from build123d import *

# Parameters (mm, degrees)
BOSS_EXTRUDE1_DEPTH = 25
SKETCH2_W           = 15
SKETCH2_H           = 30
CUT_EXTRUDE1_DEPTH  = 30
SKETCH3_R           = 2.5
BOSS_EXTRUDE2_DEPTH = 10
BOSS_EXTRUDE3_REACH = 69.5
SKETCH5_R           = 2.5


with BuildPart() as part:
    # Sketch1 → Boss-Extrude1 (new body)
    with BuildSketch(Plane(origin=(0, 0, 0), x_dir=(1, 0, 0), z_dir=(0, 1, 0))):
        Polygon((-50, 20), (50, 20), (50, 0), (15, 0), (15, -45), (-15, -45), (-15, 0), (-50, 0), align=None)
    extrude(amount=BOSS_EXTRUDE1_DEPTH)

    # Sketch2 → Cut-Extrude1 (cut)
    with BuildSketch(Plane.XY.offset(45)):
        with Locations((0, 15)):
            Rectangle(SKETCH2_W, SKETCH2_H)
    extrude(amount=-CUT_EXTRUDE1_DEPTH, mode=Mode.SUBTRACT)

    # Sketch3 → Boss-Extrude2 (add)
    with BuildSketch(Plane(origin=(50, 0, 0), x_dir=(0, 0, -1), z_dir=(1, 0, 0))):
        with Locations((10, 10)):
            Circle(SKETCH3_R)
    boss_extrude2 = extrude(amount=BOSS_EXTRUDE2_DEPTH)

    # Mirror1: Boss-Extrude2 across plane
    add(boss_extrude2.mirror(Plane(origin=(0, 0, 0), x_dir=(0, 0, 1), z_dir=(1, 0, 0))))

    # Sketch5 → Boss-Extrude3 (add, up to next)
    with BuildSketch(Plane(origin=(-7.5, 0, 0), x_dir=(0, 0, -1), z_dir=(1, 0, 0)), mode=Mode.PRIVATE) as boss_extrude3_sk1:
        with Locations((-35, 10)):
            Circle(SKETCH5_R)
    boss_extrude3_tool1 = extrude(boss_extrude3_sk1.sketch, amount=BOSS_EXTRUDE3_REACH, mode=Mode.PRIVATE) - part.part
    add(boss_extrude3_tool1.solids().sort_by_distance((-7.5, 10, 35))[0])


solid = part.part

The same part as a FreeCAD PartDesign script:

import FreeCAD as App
import Part
import Sketcher
from FreeCAD import Vector

doc = App.newDocument("Part")
body = doc.addObject("PartDesign::Body", "Body")

sketch1 = body.newObject("Sketcher::SketchObject", "Sketch")
sketch1.AttachmentSupport = (doc.getObject("XZ_Plane"), [""])
sketch1.MapMode = "FlatFace"
sketch1.addGeometry([
    Part.LineSegment(Vector(50, -20, 0), Vector(-50, -20, 0)),
    Part.LineSegment(Vector(-50, -20, 0), Vector(-50, 0, 0)),
    Part.LineSegment(Vector(-50, 0, 0), Vector(-15, 0, 0)),
    Part.LineSegment(Vector(-15, 0, 0), Vector(-15, 45, 0)),
    Part.LineSegment(Vector(-15, 45, 0), Vector(15, 45, 0)),
    Part.LineSegment(Vector(15, 45, 0), Vector(15, 0, 0)),
    Part.LineSegment(Vector(15, 0, 0), Vector(50, 0, 0)),
    Part.LineSegment(Vector(50, 0, 0), Vector(50, -20, 0)),
], False)
sketch1.addConstraint([
    Sketcher.Constraint("Coincident", 0, 2, 1, 1),
    Sketcher.Constraint("Coincident", 1, 2, 2, 1),
    Sketcher.Constraint("Coincident", 2, 2, 3, 1),
    Sketcher.Constraint("Coincident", 3, 2, 4, 1),
    Sketcher.Constraint("Coincident", 4, 2, 5, 1),
    Sketcher.Constraint("Coincident", 5, 2, 6, 1),
    Sketcher.Constraint("Coincident", 6, 2, 7, 1),
    Sketcher.Constraint("Coincident", 7, 2, 0, 1),
    Sketcher.Constraint("Horizontal", 0),
    Sketcher.Constraint("Vertical", 1),
    Sketcher.Constraint("Horizontal", 2),
    Sketcher.Constraint("Vertical", 3),
    Sketcher.Constraint("Horizontal", 4),
    Sketcher.Constraint("Vertical", 5),
    Sketcher.Constraint("Horizontal", 6),
    Sketcher.Constraint("Vertical", 7),
    Sketcher.Constraint("Symmetric", 2, 2, 5, 2, -1, 1),
    Sketcher.Constraint("Symmetric", 1, 2, 6, 2, -2),
    Sketcher.Constraint("DistanceX", 0, 2, 0, 1, 100.0),
    Sketcher.Constraint("DistanceX", 2, 1, 2, 2, 35.0),
    Sketcher.Constraint("DistanceY", 1, 1, 1, 2, 20.0),
    Sketcher.Constraint("DistanceY", 3, 1, 3, 2, 45.0),
])
pad1 = body.newObject("PartDesign::Pad", "Pad")
pad1.Profile = sketch1
pad1.Length = 25
pad1.Reversed = True

sketch2 = body.newObject("Sketcher::SketchObject", "Sketch001")
sketch2.AttachmentSupport = (doc.getObject("XY_Plane"), [""])
sketch2.MapMode = "FlatFace"
sketch2.AttachmentOffset = App.Placement(Vector(0, 0, 45), App.Rotation())
sketch2.addGeometry([
    Part.LineSegment(Vector(-8, 30, 0), Vector(-8, 0, 0)),
    Part.LineSegment(Vector(-8, 0, 0), Vector(8, 0, 0)),
    Part.LineSegment(Vector(8, 0, 0), Vector(8, 30, 0)),
    Part.LineSegment(Vector(8, 30, 0), Vector(-8, 30, 0)),
], False)
sketch2.addConstraint([
    Sketcher.Constraint("Coincident", 0, 2, 1, 1),
    Sketcher.Constraint("Coincident", 1, 2, 2, 1),
    Sketcher.Constraint("Coincident", 2, 2, 3, 1),
    Sketcher.Constraint("Coincident", 3, 2, 0, 1),
    Sketcher.Constraint("Vertical", 0),
    Sketcher.Constraint("Horizontal", 1),
    Sketcher.Constraint("Vertical", 2),
    Sketcher.Constraint("Horizontal", 3),
    Sketcher.Constraint("Symmetric", 0, 2, 1, 2, -1, 1),
    Sketcher.Constraint("DistanceX", 1, 1, 1, 2, 15.0),
    Sketcher.Constraint("DistanceY", 0, 2, 0, 1, 30.0),
])
pocket1 = body.newObject("PartDesign::Pocket", "Pocket")
pocket1.Profile = sketch2
pocket1.Length = 30

sketch3 = body.newObject("Sketcher::SketchObject", "Sketch002")
sketch3.AttachmentSupport = (doc.getObject("YZ_Plane"), [""])
sketch3.MapMode = "FlatFace"
sketch3.AttachmentOffset = App.Placement(Vector(0, 0, 50), App.Rotation())
sketch3.addGeometry(Part.Circle(Vector(10, -10, 0), Vector(0, 0, 1), 2.5), False)
sketch3.addConstraint([
    Sketcher.Constraint("Diameter", 0, 5.0),
    Sketcher.Constraint("DistanceX", -1, 1, 0, 3, 10.0),
    Sketcher.Constraint("DistanceY", 0, 3, -1, 1, 10.0),
])
pad2 = body.newObject("PartDesign::Pad", "Pad001")
pad2.Profile = sketch3
pad2.Length = 10
doc.recompute()

mirrored = body.newObject("PartDesign::Mirrored", "Mirrored")
mirrored.Originals = [pad2]
mirrored.MirrorPlane = (doc.getObject("YZ_Plane"), [""])
body.Tip = mirrored

sketch4 = body.newObject("Sketcher::SketchObject", "Sketch003")
sketch4.AttachmentSupport = (doc.getObject("YZ_Plane"), [""])
sketch4.MapMode = "FlatFace"
sketch4.AttachmentOffset = App.Placement(Vector(0, 0, -7.5), App.Rotation())
sketch4.addGeometry(Part.Circle(Vector(10, 35, 0), Vector(0, 0, 1), 2.5), False)
sketch4.addConstraint([
    Sketcher.Constraint("Diameter", 0, 5.0),
    Sketcher.Constraint("DistanceX", -1, 1, 0, 3, 10.0),
    Sketcher.Constraint("DistanceY", -1, 1, 0, 3, 35.0),
])
pad3 = body.newObject("PartDesign::Pad", "Pad002")
pad3.Profile = sketch4
pad3.Type = "UpToFirst"

doc.recompute()
